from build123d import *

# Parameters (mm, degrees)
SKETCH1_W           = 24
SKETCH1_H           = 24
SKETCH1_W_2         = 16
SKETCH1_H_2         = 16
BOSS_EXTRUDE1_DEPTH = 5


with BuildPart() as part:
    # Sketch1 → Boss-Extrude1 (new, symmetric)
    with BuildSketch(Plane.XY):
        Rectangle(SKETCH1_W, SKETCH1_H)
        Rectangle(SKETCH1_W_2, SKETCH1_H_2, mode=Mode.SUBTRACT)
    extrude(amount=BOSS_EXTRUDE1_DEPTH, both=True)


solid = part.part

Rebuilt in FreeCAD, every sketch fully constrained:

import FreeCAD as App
import Part
import Sketcher
from FreeCAD import Vector
Q = App.Units.Quantity


def add_polygon(sketch, points):
    """Adds a closed chain of lines whose ends are joined by coincident constraints."""
    first, n = sketch.GeometryCount, len(points)
    for a, b in zip(points, points[1:] + points[:1]):
        sketch.addGeometry(Part.LineSegment(App.Vector(*a, 0), App.Vector(*b, 0)), False)
    for i in range(n):
        sketch.addConstraint(Sketcher.Constraint("Coincident", first + i, 2, first + (i + 1) % n, 1))

doc = App.newDocument("Part")
body = doc.addObject("PartDesign::Body", "Body")

# Sketch on XY plane
sketch1 = body.newObject("Sketcher::SketchObject", "Sketch")
sketch1.AttachmentSupport = (doc.getObject("XY_Plane"), [""])
sketch1.MapMode = "FlatFace"
add_polygon(sketch1, [(-12, 12), (-12, -12), (12, -12), (12, 12)])  # lines 0-3
add_polygon(sketch1, [(8, -8), (-8, -8), (-8, 8), (8, 8)])  # lines 4-7
sketch1.addConstraint([
    Sketcher.Constraint("Vertical", 0),
    Sketcher.Constraint("Horizontal", 1),
    Sketcher.Constraint("Vertical", 2),
    Sketcher.Constraint("Horizontal", 3),
    Sketcher.Constraint("Horizontal", 4),
    Sketcher.Constraint("Vertical", 5),
    Sketcher.Constraint("Horizontal", 6),
    Sketcher.Constraint("Vertical", 7),
    Sketcher.Constraint("Symmetric", 0, 2, 2, 2, -1, 1),
    Sketcher.Constraint("Symmetric", 4, 2, 6, 2, -1, 1),
    Sketcher.Constraint("Equal", 3, 0),
    Sketcher.Constraint("Equal", 6, 5),
    Sketcher.Constraint("DistanceX", 1, 1, 1, 2, Q("24 mm")),
    Sketcher.Constraint("DistanceX", 4, 2, 4, 1, Q("16 mm")),
])
pad1 = body.newObject("PartDesign::Pad", "Pad")
pad1.Profile = sketch1
pad1.Length = 10
pad1.Midplane = True

doc.recompute()
